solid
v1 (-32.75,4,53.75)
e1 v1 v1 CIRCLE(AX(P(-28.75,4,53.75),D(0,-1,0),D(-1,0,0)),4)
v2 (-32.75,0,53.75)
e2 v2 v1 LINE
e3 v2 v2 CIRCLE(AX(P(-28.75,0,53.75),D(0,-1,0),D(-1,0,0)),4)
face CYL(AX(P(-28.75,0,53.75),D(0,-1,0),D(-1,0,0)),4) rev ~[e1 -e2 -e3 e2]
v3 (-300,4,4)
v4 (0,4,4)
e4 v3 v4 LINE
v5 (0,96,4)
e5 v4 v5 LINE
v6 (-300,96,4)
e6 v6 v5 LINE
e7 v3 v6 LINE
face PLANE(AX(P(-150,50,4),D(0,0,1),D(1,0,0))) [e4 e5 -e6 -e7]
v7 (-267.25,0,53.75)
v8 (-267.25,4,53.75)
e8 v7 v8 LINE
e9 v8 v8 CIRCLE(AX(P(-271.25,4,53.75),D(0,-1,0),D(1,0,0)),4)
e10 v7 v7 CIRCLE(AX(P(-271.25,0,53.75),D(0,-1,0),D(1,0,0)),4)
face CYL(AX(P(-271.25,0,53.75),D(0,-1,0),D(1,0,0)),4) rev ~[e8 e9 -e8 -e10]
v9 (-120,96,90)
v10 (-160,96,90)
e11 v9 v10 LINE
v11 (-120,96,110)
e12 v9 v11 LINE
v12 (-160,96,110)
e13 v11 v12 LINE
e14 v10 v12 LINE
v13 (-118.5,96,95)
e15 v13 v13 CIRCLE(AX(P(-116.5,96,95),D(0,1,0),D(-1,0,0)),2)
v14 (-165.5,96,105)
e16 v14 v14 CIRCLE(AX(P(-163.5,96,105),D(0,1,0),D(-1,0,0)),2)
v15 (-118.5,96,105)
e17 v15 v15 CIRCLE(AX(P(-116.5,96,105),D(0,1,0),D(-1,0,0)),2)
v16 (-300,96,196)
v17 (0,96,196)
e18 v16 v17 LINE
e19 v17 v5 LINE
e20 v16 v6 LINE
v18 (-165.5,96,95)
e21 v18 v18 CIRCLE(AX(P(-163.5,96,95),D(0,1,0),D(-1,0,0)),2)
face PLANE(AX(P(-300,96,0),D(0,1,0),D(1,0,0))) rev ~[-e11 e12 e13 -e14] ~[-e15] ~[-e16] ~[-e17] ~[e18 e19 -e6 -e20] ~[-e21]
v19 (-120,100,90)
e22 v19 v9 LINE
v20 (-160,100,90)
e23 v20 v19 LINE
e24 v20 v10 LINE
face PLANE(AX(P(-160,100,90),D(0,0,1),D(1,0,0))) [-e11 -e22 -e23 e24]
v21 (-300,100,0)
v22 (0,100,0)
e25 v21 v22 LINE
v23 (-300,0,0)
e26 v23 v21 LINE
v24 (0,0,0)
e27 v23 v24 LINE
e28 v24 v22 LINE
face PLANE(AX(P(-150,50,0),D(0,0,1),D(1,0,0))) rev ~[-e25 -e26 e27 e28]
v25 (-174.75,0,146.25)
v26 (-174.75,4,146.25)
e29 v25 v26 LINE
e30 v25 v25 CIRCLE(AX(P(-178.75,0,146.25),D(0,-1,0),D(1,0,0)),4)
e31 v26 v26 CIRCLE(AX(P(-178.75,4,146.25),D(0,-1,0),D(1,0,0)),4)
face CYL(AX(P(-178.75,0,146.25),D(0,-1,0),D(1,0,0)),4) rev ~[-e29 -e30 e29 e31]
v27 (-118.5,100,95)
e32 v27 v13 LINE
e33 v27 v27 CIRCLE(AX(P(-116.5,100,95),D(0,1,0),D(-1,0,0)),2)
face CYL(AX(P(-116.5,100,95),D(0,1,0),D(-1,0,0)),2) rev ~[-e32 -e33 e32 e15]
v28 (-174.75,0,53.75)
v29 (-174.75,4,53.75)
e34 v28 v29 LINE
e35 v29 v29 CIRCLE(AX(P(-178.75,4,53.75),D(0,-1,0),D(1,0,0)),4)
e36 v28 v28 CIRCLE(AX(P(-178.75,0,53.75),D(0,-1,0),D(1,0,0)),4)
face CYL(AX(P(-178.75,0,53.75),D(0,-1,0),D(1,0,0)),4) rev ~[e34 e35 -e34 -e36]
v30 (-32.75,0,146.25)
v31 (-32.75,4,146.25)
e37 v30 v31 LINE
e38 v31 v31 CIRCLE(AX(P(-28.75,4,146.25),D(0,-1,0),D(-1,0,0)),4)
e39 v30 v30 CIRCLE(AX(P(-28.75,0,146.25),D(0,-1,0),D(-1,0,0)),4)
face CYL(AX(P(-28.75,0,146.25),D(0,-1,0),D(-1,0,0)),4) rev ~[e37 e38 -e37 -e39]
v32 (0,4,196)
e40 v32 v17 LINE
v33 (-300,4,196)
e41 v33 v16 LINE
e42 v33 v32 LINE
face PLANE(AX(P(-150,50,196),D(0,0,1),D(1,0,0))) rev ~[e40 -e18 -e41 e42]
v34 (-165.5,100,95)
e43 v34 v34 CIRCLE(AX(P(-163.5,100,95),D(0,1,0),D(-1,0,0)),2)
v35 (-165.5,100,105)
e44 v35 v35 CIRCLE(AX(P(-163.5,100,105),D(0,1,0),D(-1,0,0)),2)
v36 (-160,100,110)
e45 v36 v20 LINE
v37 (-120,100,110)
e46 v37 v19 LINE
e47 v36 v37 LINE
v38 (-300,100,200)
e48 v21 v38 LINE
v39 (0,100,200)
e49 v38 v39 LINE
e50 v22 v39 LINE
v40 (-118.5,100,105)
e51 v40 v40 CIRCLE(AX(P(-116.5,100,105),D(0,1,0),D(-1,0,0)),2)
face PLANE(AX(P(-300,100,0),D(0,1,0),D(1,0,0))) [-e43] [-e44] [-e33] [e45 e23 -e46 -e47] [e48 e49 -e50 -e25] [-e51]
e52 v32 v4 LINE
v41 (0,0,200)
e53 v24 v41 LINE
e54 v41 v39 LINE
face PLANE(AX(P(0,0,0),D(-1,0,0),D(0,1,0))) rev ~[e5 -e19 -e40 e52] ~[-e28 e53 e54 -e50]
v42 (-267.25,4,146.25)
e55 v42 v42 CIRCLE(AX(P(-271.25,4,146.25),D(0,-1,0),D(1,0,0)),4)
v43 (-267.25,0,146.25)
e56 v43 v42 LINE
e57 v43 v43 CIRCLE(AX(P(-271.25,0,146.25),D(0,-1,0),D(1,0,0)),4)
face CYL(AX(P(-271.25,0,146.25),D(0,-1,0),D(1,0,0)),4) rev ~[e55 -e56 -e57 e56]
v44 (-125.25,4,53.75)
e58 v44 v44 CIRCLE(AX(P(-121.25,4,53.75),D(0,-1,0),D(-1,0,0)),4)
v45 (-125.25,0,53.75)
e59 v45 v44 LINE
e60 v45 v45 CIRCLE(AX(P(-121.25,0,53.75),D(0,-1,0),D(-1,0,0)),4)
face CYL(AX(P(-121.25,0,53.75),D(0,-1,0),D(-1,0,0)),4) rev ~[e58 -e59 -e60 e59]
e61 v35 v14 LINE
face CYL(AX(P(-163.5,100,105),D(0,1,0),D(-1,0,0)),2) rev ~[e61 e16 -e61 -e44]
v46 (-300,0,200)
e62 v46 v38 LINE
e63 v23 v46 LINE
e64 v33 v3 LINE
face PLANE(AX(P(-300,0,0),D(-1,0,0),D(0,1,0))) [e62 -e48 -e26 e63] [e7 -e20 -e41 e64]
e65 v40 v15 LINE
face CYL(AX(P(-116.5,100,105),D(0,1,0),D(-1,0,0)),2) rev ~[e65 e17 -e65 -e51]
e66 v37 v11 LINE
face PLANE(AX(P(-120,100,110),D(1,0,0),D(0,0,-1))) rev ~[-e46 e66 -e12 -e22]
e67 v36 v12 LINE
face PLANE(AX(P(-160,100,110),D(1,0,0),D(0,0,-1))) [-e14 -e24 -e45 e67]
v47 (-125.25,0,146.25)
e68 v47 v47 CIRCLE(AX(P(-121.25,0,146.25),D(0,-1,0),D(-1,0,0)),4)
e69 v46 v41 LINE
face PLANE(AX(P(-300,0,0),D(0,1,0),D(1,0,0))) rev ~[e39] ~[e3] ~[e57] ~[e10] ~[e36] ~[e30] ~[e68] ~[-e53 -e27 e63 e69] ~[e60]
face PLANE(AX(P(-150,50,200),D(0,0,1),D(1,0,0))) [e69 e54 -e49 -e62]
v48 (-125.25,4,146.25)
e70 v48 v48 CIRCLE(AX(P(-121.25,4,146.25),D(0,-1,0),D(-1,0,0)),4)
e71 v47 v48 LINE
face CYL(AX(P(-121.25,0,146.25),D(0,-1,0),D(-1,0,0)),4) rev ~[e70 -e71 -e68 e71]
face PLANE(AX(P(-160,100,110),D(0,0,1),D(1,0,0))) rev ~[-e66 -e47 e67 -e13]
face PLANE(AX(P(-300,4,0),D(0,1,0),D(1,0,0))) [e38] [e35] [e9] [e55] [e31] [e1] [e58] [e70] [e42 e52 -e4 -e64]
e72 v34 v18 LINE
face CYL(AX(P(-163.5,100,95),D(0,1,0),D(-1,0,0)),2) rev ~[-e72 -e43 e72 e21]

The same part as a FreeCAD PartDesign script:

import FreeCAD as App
import Part
import Sketcher

V = App.Vector
Q = App.Units.Quantity


def faces_at(feature, points):
    """Names of the faces that lie closest to the given points."""
    faces = feature.Shape.Faces
    near = lambda p: min(range(len(faces)), key=lambda i: faces[i].distToShape(Part.Vertex(*p))[0])
    return sorted({f"Face{near(p) + 1}" for p in points})

doc = App.newDocument("Part")
body = doc.addObject("PartDesign::Body", "Body")

sketch1 = doc.addObject("Sketcher::SketchObject", "Sketch")
body.addObject(sketch1)
sketch1.AttachmentSupport = (doc.XY_Plane, [""])
sketch1.MapMode = "FlatFace"
sketch1.addGeometry([
    Part.LineSegment(V(-300, 100, 0), V(-300, 0, 0)),
    Part.LineSegment(V(-300, 0, 0), V(0, 0, 0)),
    Part.LineSegment(V(0, 0, 0), V(0, 100, 0)),
    Part.LineSegment(V(0, 100, 0), V(-300, 100, 0)),
], False)
sketch1.addConstraint([
    Sketcher.Constraint("Coincident", 0, 2, 1, 1),
    Sketcher.Constraint("Coincident", 1, 2, 2, 1),
    Sketcher.Constraint("Coincident", 2, 2, 3, 1),
    Sketcher.Constraint("Coincident", 3, 2, 0, 1),
    Sketcher.Constraint("Vertical", 0),
    Sketcher.Constraint("Horizontal", 1),
    Sketcher.Constraint("Vertical", 2),
    Sketcher.Constraint("Horizontal", 3),
    Sketcher.Constraint("Coincident", 1, 2, -1, 1),
    Sketcher.Constraint("DistanceX", 1, 1, 1, 2, Q("300 mm")),
    Sketcher.Constraint("DistanceY", 0, 2, 0, 1, Q("100 mm")),
])
pad1 = doc.addObject("PartDesign::Pad", "Pad")
body.addObject(pad1)
pad1.Profile = sketch1
pad1.Length = 200
doc.recompute()

thickness = doc.addObject("PartDesign::Thickness", "Thickness")
body.addObject(thickness)
thickness.Base = (pad1, faces_at(pad1, [(-300, 50, 100), (0, 50, 100)]))
thickness.Value = 4
thickness.Reversed = True
thickness.Join = "Intersection"

sketch2 = doc.addObject("Sketcher::SketchObject", "Sketch001")
body.addObject(sketch2)
sketch2.AttachmentSupport = (doc.XZ_Plane, [""])
sketch2.MapMode = "FlatFace"
sketch2.addGeometry(Part.Circle(V(-271.25, 146.25, 0), V(0, 0, 1), 4), False)
sketch2.addConstraint([
    Sketcher.Constraint("Diameter", 0, Q("8 mm")),
    Sketcher.Constraint("DistanceX", 0, 3, -1, 1, Q("271.25 mm")),
    Sketcher.Constraint("DistanceY", -1, 1, 0, 3, Q("146.25 mm")),
])
pocket1 = doc.addObject("PartDesign::Pocket", "Pocket")
body.addObject(pocket1)
pocket1.Profile = sketch2
pocket1.Type = "UpToFirst"

sketch3 = doc.addObject("Sketcher::SketchObject", "Sketch002")
body.addObject(sketch3)
sketch3.AttachmentSupport = (doc.XZ_Plane, [""])
sketch3.MapMode = "FlatFace"
sketch3.addGeometry(Part.Circle(V(-178.75, 146.25, 0), V(0, 0, 1), 4), False)
sketch3.addConstraint([
    Sketcher.Constraint("Diameter", 0, Q("8 mm")),
    Sketcher.Constraint("DistanceX", 0, 3, -1, 1, Q("178.75 mm")),
    Sketcher.Constraint("DistanceY", -1, 1, 0, 3, Q("146.25 mm")),
])
pocket2 = doc.addObject("PartDesign::Pocket", "Pocket001")
body.addObject(pocket2)
pocket2.Profile = sketch3
pocket2.Type = "UpToFirst"

sketch4 = doc.addObject("Sketcher::SketchObject", "Sketch003")
body.addObject(sketch4)
sketch4.AttachmentSupport = (doc.XZ_Plane, [""])
sketch4.MapMode = "FlatFace"
sketch4.addGeometry(Part.Circle(V(-28.75, 146.25, 0), V(0, 0, 1), 4), False)
sketch4.addConstraint([
    Sketcher.Constraint("Diameter", 0, Q("8 mm")),
    Sketcher.Constraint("DistanceX", 0, 3, -1, 1, Q("28.75 mm")),
    Sketcher.Constraint("DistanceY", -1, 1, 0, 3, Q("146.25 mm")),
])
pocket3 = doc.addObject("PartDesign::Pocket", "Pocket002")
body.addObject(pocket3)
pocket3.Profile = sketch4
pocket3.Type = "UpToFirst"

sketch5 = doc.addObject("Sketcher::SketchObject", "Sketch004")
body.addObject(sketch5)
sketch5.AttachmentSupport = (doc.XZ_Plane, [""])
sketch5.MapMode = "FlatFace"
sketch5.addGeometry(Part.Circle(V(-121.25, 146.25, 0), V(0, 0, 1), 4), False)
sketch5.addConstraint([
    Sketcher.Constraint("Diameter", 0, Q("8 mm")),
    Sketcher.Constraint("DistanceX", 0, 3, -1, 1, Q("121.25 mm")),
    Sketcher.Constraint("DistanceY", -1, 1, 0, 3, Q("146.25 mm")),
])
pocket4 = doc.addObject("PartDesign::Pocket", "Pocket003")
body.addObject(pocket4)
pocket4.Profile = sketch5
pocket4.Type = "UpToFirst"

sketch6 = doc.addObject("Sketcher::SketchObject", "Sketch005")
body.addObject(sketch6)
sketch6.AttachmentSupport = (doc.XZ_Plane, [""])
sketch6.MapMode = "FlatFace"
sketch6.addGeometry(Part.Circle(V(-271.25, 53.75, 0), V(0, 0, 1), 4), False)
sketch6.addConstraint([
    Sketcher.Constraint("Diameter", 0, Q("8 mm")),
    Sketcher.Constraint("DistanceX", 0, 3, -1, 1, Q("271.25 mm")),
    Sketcher.Constraint("DistanceY", -1, 1, 0, 3, Q("53.75 mm")),
])
pocket5 = doc.addObject("PartDesign::Pocket", "Pocket004")
body.addObject(pocket5)
pocket5.Profile = sketch6
pocket5.Type = "UpToFirst"

sketch7 = doc.addObject("Sketcher::SketchObject", "Sketch006")
body.addObject(sketch7)
sketch7.AttachmentSupport = (doc.XZ_Plane, [""])
sketch7.MapMode = "FlatFace"
sketch7.addGeometry(Part.Circle(V(-178.75, 53.75, 0), V(0, 0, 1), 4), False)
sketch7.addConstraint([
    Sketcher.Constraint("Diameter", 0, Q("8 mm")),
    Sketcher.Constraint("DistanceX", 0, 3, -1, 1, Q("178.75 mm")),
    Sketcher.Constraint("DistanceY", -1, 1, 0, 3, Q("53.75 mm")),
])
pocket6 = doc.addObject("PartDesign::Pocket", "Pocket005")
body.addObject(pocket6)
pocket6.Profile = sketch7
pocket6.Type = "UpToFirst"

sketch8 = doc.addObject("Sketcher::SketchObject", "Sketch007")
body.addObject(sketch8)
sketch8.AttachmentSupport = (doc.XZ_Plane, [""])
sketch8.MapMode = "FlatFace"
sketch8.addGeometry(Part.Circle(V(-121.25, 53.75, 0), V(0, 0, 1), 4), False)
sketch8.addConstraint([
    Sketcher.Constraint("Diameter", 0, Q("8 mm")),
    Sketcher.Constraint("DistanceX", 0, 3, -1, 1, Q("121.25 mm")),
    Sketcher.Constraint("DistanceY", -1, 1, 0, 3, Q("53.75 mm")),
])
pocket7 = doc.addObject("PartDesign::Pocket", "Pocket006")
body.addObject(pocket7)
pocket7.Profile = sketch8
pocket7.Type = "UpToFirst"

sketch9 = doc.addObject("Sketcher::SketchObject", "Sketch008")
body.addObject(sketch9)
sketch9.AttachmentSupport = (doc.XZ_Plane, [""])
sketch9.MapMode = "FlatFace"
sketch9.addGeometry(Part.Circle(V(-28.75, 53.75, 0), V(0, 0, 1), 4), False)
sketch9.addConstraint([
    Sketcher.Constraint("Diameter", 0, Q("8 mm")),
    Sketcher.Constraint("DistanceX", 0, 3, -1, 1, Q("28.75 mm")),
    Sketcher.Constraint("DistanceY", -1, 1, 0, 3, Q("53.75 mm")),
])
pocket8 = doc.addObject("PartDesign::Pocket", "Pocket007")
body.addObject(pocket8)
pocket8.Profile = sketch9
pocket8.Type = "UpToFirst"

sketch10 = doc.addObject("Sketcher::SketchObject", "Sketch009")
body.addObject(sketch10)
sketch10.AttachmentSupport = (doc.XZ_Plane, [""])
sketch10.MapMode = "FlatFace"
sketch10.AttachmentOffset = App.Placement(V(0, 0, -100), App.Rotation())
sketch10.addGeometry(Part.Circle(V(-116.5, 95, 0), V(0, 0, 1), 2), False)
sketch10.addConstraint([
    Sketcher.Constraint("Diameter", 0, Q("4 mm")),
    Sketcher.Constraint("DistanceY", -1, 1, 0, 3, Q("95 mm")),
    Sketcher.Constraint("DistanceX", 0, 3, -1, 1, Q("116.5 mm")),
])
pocket9 = doc.addObject("PartDesign::Pocket", "Pocket008")
body.addObject(pocket9)
pocket9.Profile = sketch10
pocket9.Type = "UpToFirst"
pocket9.Reversed = True

sketch11 = doc.addObject("Sketcher::SketchObject", "Sketch010")
body.addObject(sketch11)
sketch11.AttachmentSupport = (doc.XZ_Plane, [""])
sketch11.MapMode = "FlatFace"
sketch11.AttachmentOffset = App.Placement(V(0, 0, -100), App.Rotation())
sketch11.addGeometry(Part.Circle(V(-116.5, 105, 0), V(0, 0, 1), 2), False)
sketch11.addConstraint([
    Sketcher.Constraint("Diameter", 0, Q("4 mm")),
    Sketcher.Constraint("DistanceY", -1, 1, 0, 3, Q("105 mm")),
    Sketcher.Constraint("DistanceX", 0, 3, -1, 1, Q("116.5 mm")),
])
pocket10 = doc.addObject("PartDesign::Pocket", "Pocket009")
body.addObject(pocket10)
pocket10.Profile = sketch11
pocket10.Type = "UpToFirst"
pocket10.Reversed = True

sketch12 = doc.addObject("Sketcher::SketchObject", "Sketch011")
body.addObject(sketch12)
sketch12.AttachmentSupport = (doc.XZ_Plane, [""])
sketch12.MapMode = "FlatFace"
sketch12.AttachmentOffset = App.Placement(V(0, 0, -100), App.Rotation())
sketch12.addGeometry(Part.Circle(V(-163.5, 105, 0), V(0, 0, 1), 2), False)
sketch12.addConstraint([
    Sketcher.Constraint("Diameter", 0, Q("4 mm")),
    Sketcher.Constraint("DistanceY", -1, 1, 0, 3, Q("105 mm")),
    Sketcher.Constraint("DistanceX", 0, 3, -1, 1, Q("163.5 mm")),
])
pocket11 = doc.addObject("PartDesign::Pocket", "Pocket010")
body.addObject(pocket11)
pocket11.Profile = sketch12
pocket11.Type = "UpToFirst"
pocket11.Reversed = True

sketch13 = doc.addObject("Sketcher::SketchObject", "Sketch012")
body.addObject(sketch13)
sketch13.AttachmentSupport = (doc.XZ_Plane, [""])
sketch13.MapMode = "FlatFace"
sketch13.AttachmentOffset = App.Placement(V(0, 0, -100), App.Rotation())
sketch13.addGeometry(Part.Circle(V(-163.5, 95, 0), V(0, 0, 1), 2), False)
sketch13.addConstraint([
    Sketcher.Constraint("Diameter", 0, Q("4 mm")),
    Sketcher.Constraint("DistanceY", -1, 1, 0, 3, Q("95 mm")),
    Sketcher.Constraint("DistanceX", 0, 3, -1, 1, Q("163.5 mm")),
])
pocket12 = doc.addObject("PartDesign::Pocket", "Pocket011")
body.addObject(pocket12)
pocket12.Profile = sketch13
pocket12.Type = "UpToFirst"
pocket12.Reversed = True

sketch14 = doc.addObject("Sketcher::SketchObject", "Sketch013")
body.addObject(sketch14)
sketch14.AttachmentSupport = (doc.XZ_Plane, [""])
sketch14.MapMode = "FlatFace"
sketch14.AttachmentOffset = App.Placement(V(0, 0, -100), App.Rotation())
sketch14.addGeometry([
    Part.LineSegment(V(-160, 90, 0), V(-160, 110, 0)),
    Part.LineSegment(V(-160, 110, 0), V(-120, 110, 0)),
    Part.LineSegment(V(-120, 110, 0), V(-120, 90, 0)),
    Part.LineSegment(V(-120, 90, 0), V(-160, 90, 0)),
], False)
sketch14.addConstraint([
    Sketcher.Constraint("Coincident", 0, 2, 1, 1),
    Sketcher.Constraint("Coincident", 1, 2, 2, 1),
    Sketcher.Constraint("Coincident", 2, 2, 3, 1),
    Sketcher.Constraint("Coincident", 3, 2, 0, 1),
    Sketcher.Constraint("Vertical", 0),
    Sketcher.Constraint("Horizontal", 1),
    Sketcher.Constraint("Vertical", 2),
    Sketcher.Constraint("Horizontal", 3),
    Sketcher.Constraint("DistanceX", 1, 1, 1, 2, Q("40 mm")),
    Sketcher.Constraint("DistanceY", 0, 1, 0, 2, Q("20 mm")),
    Sketcher.Constraint("DistanceX", 0, 2, -1, 1, Q("160 mm")),
    Sketcher.Constraint("DistanceY", -1, 1, 0, 2, Q("110 mm")),
])
pocket13 = doc.addObject("PartDesign::Pocket", "Pocket012")
body.addObject(pocket13)
pocket13.Profile = sketch14
pocket13.Type = "UpToFirst"
pocket13.Reversed = True

doc.recompute()
